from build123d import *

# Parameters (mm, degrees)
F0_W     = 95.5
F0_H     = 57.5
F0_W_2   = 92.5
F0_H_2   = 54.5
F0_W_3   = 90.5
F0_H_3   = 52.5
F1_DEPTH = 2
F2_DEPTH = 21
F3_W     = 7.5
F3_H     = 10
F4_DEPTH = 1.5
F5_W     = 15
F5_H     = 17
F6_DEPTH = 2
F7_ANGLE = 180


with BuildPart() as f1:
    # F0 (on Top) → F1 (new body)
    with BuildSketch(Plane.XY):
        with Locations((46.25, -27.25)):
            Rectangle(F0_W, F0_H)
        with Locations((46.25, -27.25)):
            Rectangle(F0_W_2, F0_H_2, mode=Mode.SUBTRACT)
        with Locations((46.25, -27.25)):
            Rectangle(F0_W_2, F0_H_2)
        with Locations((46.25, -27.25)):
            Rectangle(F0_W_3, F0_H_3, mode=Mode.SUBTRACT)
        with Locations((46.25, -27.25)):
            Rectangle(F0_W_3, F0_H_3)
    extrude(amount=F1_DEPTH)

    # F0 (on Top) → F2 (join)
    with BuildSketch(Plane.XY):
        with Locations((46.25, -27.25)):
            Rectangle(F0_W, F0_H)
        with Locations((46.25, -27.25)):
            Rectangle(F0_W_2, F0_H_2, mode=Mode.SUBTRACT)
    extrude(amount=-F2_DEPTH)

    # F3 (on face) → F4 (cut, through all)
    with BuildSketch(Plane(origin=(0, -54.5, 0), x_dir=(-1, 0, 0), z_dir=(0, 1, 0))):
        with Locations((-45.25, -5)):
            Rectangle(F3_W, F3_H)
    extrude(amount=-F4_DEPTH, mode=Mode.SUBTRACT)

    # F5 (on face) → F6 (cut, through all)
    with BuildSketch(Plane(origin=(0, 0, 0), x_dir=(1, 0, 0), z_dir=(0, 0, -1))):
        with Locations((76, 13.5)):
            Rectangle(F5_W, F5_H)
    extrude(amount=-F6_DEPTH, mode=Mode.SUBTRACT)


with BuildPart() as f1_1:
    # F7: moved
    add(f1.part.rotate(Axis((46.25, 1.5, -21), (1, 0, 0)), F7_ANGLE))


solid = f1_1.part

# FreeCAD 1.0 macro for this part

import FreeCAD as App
import Part
import Sketcher
Q = App.Units.Quantity


def add_polygon(sketch, points):
    """Adds a closed chain of lines whose ends are joined by coincident constraints."""
    first, n = sketch.GeometryCount, len(points)
    for a, b in zip(points, points[1:] + points[:1]):
        sketch.addGeometry(Part.LineSegment(App.Vector(*a, 0), App.Vector(*b, 0)), False)
    for i in range(n):
        sketch.addConstraint(Sketcher.Constraint("Coincident", first + i, 2, first + (i + 1) % n, 1))

doc = App.newDocument("Part")
params = doc.addObject("Spreadsheet::Sheet", "Params")
for row, (alias, value) in enumerate([
    ("sketch1_width", "95.5 mm"),
    ("sketch1_height", "57.5 mm"),
    ("pad1_length", "2 mm"),
    ("sketch2_width", "95.5 mm"),
    ("sketch2_width2", "92.5 mm"),
    ("sketch2_height", "57.5 mm"),
    ("sketch2_height2", "54.5 mm"),
    ("pad2_length", "21 mm"),
    ("sketch3_height", "10 mm"),
    ("sketch3_width", "7.5 mm"),
    ("sketch4_width", "15 mm"),
    ("sketch4_height", "17 mm"),
], start=1):
    params.set(f"A{row}", alias)
    params.set(f"B{row}", "=" + value)
    params.setAlias(f"B{row}", alias)

body = doc.addObject("PartDesign::Body", "Body")

# Sketch on XY plane
sketch1 = doc.addObject("Sketcher::SketchObject", "Sketch")
body.addObject(sketch1)
sketch1.AttachmentSupport = (doc.XY_Plane, [""])
sketch1.MapMode = "FlatFace"
add_polygon(sketch1, [(-2, 2), (-2, -56), (94, -56), (94, 2)])  # lines 0-3
sketch1.addConstraint([
    Sketcher.Constraint("Vertical", 0),
    Sketcher.Constraint("Horizontal", 1),
    Sketcher.Constraint("Vertical", 2),
    Sketcher.Constraint("Horizontal", 3),
    Sketcher.Constraint("DistanceX", 1, 1, 1, 2, Q("95.5 mm")),
    Sketcher.Constraint("DistanceY", 0, 2, 0, 1, Q("57.5 mm")),
    Sketcher.Constraint("DistanceY", 0, 2, -1, 1, Q("56 mm")),
    Sketcher.Constraint("DistanceX", -1, 1, 1, 2, Q("94 mm")),
])
sketch1.setExpression("Constraints[8]", "Params.sketch1_width")
sketch1.setExpression("Constraints[9]", "Params.sketch1_height")
pad1 = doc.addObject("PartDesign::Pad", "Pad")
body.addObject(pad1)
pad1.Profile = sketch1
pad1.setExpression("Length", "Params.pad1_length")

# Sketch on XY plane
sketch2 = doc.addObject("Sketcher::SketchObject", "Sketch001")
body.addObject(sketch2)
sketch2.AttachmentSupport = (doc.XY_Plane, [""])
sketch2.MapMode = "FlatFace"
add_polygon(sketch2, [(-2, 2), (-2, -56), (94, -56), (94, 2)])  # lines 0-3
add_polygon(sketch2, [(92, -54), (0, -54), (0, 0), (92, 0)])  # lines 4-7
sketch2.addConstraint([
    Sketcher.Constraint("Vertical", 0),
    Sketcher.Constraint("Horizontal", 1),
    Sketcher.Constraint("Vertical", 2),
    Sketcher.Constraint("Horizontal", 3),
    Sketcher.Constraint("Horizontal", 4),
    Sketcher.Constraint("Vertical", 5),
    Sketcher.Constraint("Horizontal", 6),
    Sketcher.Constraint("Vertical", 7),
    Sketcher.Constraint("Coincident", 5, 2, -1, 1),
    Sketcher.Constraint("DistanceX", 1, 1, 1, 2, Q("95.5 mm")),
    Sketcher.Constraint("DistanceX", 4, 2, 4, 1, Q("92.5 mm")),
    Sketcher.Constraint("DistanceY", 0, 2, 0, 1, Q("57.5 mm")),
    Sketcher.Constraint("DistanceY", 5, 1, 5, 2, Q("54.5 mm")),
    Sketcher.Constraint("DistanceY", 0, 2, -1, 1, Q("56 mm")),
    Sketcher.Constraint("DistanceX", -1, 1, 1, 2, Q("94 mm")),
])
sketch2.setExpression("Constraints[17]", "Params.sketch2_width")
sketch2.setExpression("Constraints[18]", "Params.sketch2_width2")
sketch2.setExpression("Constraints[19]", "Params.sketch2_height")
sketch2.setExpression("Constraints[20]", "Params.sketch2_height2")
pad2 = doc.addObject("PartDesign::Pad", "Pad001")
body.addObject(pad2)
pad2.Profile = sketch2
pad2.setExpression("Length", "Params.pad2_length")
pad2.Reversed = True

# Sketch on XZ plane
sketch3 = doc.addObject("Sketcher::SketchObject", "Sketch002")
body.addObject(sketch3)
sketch3.AttachmentSupport = (doc.XZ_Plane, [""])
sketch3.MapMode = "FlatFace"
sketch3.AttachmentOffset = App.Placement(App.Vector(0, 0, 54.5), App.Rotation())
add_polygon(sketch3, [(49, 0), (49, -10), (42, -10), (42, 0)])  # lines 0-3
sketch3.addConstraint([
    Sketcher.Constraint("Vertical", 0),
    Sketcher.Constraint("Horizontal", 1),
    Sketcher.Constraint("Vertical", 2),
    Sketcher.Constraint("Horizontal", 3),
    Sketcher.Constraint("PointOnObject", 2, 2, -1),
    Sketcher.Constraint("DistanceY", 0, 2, 0, 1, Q("10 mm")),
    Sketcher.Constraint("DistanceX", 1, 2, 1, 1, Q("7.5 mm")),
    Sketcher.Constraint("DistanceX", -1, 1, 0, 2, Q("49 mm")),
])
sketch3.setExpression("Constraints[9]", "Params.sketch3_height")
sketch3.setExpression("Constraints[10]", "Params.sketch3_width")
pocket1 = doc.addObject("PartDesign::Pocket", "Pocket")
body.addObject(pocket1)
pocket1.Profile = sketch3
pocket1.Type = "ThroughAll"
pocket1.Reversed = True

# Sketch on XY plane
sketch4 = doc.addObject("Sketcher::SketchObject", "Sketch003")
body.addObject(sketch4)
sketch4.AttachmentSupport = (doc.XY_Plane, [""])
sketch4.MapMode = "FlatFace"
add_polygon(sketch4, [(68, -22), (68, -5), (84, -5), (84, -22)])  # lines 0-3
sketch4.addConstraint([
    Sketcher.Constraint("Vertical", 0),
    Sketcher.Constraint("Horizontal", 1),
    Sketcher.Constraint("Vertical", 2),
    Sketcher.Constraint("Horizontal", 3),
    Sketcher.Constraint("DistanceX", 1, 1, 1, 2, Q("15 mm")),
    Sketcher.Constraint("DistanceY", 0, 1, 0, 2, Q("17 mm")),
    Sketcher.Constraint("DistanceY", 0, 2, -1, 1, Q("5 mm")),
    Sketcher.Constraint("DistanceX", -1, 1, 0, 2, Q("68.5 mm")),
])
sketch4.setExpression("Constraints[8]", "Params.sketch4_width")
sketch4.setExpression("Constraints[9]", "Params.sketch4_height")
pocket2 = doc.addObject("PartDesign::Pocket", "Pocket001")
body.addObject(pocket2)
pocket2.Profile = sketch4
pocket2.Type = "ThroughAll"
pocket2.Reversed = True
body2 = doc.addObject("PartDesign::Body", "Body001")
doc.recompute()

body.Placement = App.Placement(App.Vector(0, 3, -42), App.Rotation(App.Vector(1, 0, 0), 180))
boolean = doc.addObject("PartDesign::Boolean", "Boolean")
body2.addObject(boolean)
boolean.Type = "Fuse"
boolean.addObjects([body])

doc.recompute()
